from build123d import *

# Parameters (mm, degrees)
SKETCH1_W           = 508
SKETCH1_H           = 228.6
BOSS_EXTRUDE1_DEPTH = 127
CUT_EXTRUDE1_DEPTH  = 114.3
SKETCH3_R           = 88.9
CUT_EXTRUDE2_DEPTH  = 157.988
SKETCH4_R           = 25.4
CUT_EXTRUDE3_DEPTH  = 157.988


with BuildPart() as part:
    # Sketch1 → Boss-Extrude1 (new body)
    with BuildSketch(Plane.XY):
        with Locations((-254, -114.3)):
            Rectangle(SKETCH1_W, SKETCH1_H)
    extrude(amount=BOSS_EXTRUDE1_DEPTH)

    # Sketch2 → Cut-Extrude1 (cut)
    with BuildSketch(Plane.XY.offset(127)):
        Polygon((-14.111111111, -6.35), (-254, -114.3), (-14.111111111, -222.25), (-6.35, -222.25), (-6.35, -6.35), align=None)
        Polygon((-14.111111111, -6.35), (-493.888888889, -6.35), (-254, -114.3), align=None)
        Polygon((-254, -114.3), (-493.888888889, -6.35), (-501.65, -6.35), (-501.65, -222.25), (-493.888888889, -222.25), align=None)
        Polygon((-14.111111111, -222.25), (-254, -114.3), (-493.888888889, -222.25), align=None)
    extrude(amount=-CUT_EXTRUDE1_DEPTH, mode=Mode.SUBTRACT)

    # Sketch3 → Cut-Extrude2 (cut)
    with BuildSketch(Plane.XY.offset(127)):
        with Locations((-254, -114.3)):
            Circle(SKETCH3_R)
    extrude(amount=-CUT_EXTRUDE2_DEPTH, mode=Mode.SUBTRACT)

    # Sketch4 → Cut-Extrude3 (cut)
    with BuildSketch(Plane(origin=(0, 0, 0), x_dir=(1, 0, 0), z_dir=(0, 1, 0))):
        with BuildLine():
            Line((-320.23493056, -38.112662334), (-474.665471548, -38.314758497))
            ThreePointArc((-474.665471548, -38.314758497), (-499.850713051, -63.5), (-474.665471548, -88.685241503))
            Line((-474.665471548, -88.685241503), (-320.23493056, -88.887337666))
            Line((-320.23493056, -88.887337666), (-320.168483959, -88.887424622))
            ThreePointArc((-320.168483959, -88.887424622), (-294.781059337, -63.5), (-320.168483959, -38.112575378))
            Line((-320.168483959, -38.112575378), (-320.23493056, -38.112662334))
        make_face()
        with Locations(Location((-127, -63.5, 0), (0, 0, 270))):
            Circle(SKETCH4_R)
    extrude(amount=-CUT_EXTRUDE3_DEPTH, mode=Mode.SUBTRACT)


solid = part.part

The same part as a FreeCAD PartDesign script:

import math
import FreeCAD as App
import Part
import Sketcher

V = App.Vector
Q = App.Units.Quantity

doc = App.newDocument("Part")
params = doc.addObject("Spreadsheet::Sheet", "Params")
for row, (alias, value) in enumerate([
    ("sketch1_width", "20 in"),
    ("sketch1_height", "9 in"),
    ("pad1_length", "5 in"),
    ("sketch2_width", "19.5 in"),
    ("sketch2_height", "8.5 in"),
    ("pocket1_length", "4.5 in"),
    ("sketch3_diameter", "7 in"),
    ("pocket2_length", "6.22 in"),
    ("sketch4_diameter", "2 in"),
    ("pocket3_length", "6.22 in"),
], start=1):
    params.set(f"A{row}", alias)
    params.set(f"B{row}", "=" + value)
    params.setAlias(f"B{row}", alias)

body = doc.addObject("PartDesign::Body", "Body")

# Sketch on XY plane
sketch1 = body.newObject("Sketcher::SketchObject", "Sketch")
sketch1.AttachmentSupport = (doc.getObject("XY_Plane"), [""])
sketch1.MapMode = "FlatFace"
sketch1.addGeometry([
    Part.LineSegment(V(-508, 0, 0), V(-508, -229, 0)),
    Part.LineSegment(V(-508, -229, 0), V(0, -229, 0)),
    Part.LineSegment(V(0, -229, 0), V(0, 0, 0)),
    Part.LineSegment(V(0, 0, 0), V(-508, 0, 0)),
], False)
sketch1.addConstraint([
    Sketcher.Constraint("Coincident", 0, 2, 1, 1),
    Sketcher.Constraint("Coincident", 1, 2, 2, 1),
    Sketcher.Constraint("Coincident", 2, 2, 3, 1),
    Sketcher.Constraint("Coincident", 3, 2, 0, 1),
    Sketcher.Constraint("Vertical", 0),
    Sketcher.Constraint("Horizontal", 1),
    Sketcher.Constraint("Vertical", 2),
    Sketcher.Constraint("Horizontal", 3),
    Sketcher.Constraint("Coincident", 2, 2, -1, 1),
    Sketcher.Constraint("DistanceX", 1, 1, 1, 2, Q("20 in")),
    Sketcher.Constraint("DistanceY", 0, 2, 0, 1, Q("9 in")),
])
sketch1.setExpression("Constraints[9]", "Params.sketch1_width")
sketch1.setExpression("Constraints[10]", "Params.sketch1_height")
pad1 = body.newObject("PartDesign::Pad", "Pad")
pad1.Profile = sketch1
pad1.setExpression("Length", "Params.pad1_length")

# Sketch on XY plane
sketch2 = body.newObject("Sketcher::SketchObject", "Sketch001")
sketch2.AttachmentSupport = (doc.getObject("XY_Plane"), [""])
sketch2.MapMode = "FlatFace"
sketch2.AttachmentOffset = App.Placement(V(0, 0, 5 * 25.4), App.Rotation())
sketch2.addGeometry([
    Part.LineSegment(V(-6, -222, 0), V(-6, -6, 0)),
    Part.LineSegment(V(-6, -6, 0), V(-502, -6, 0)),
    Part.LineSegment(V(-502, -6, 0), V(-502, -222, 0)),
    Part.LineSegment(V(-502, -222, 0), V(-6, -222, 0)),
], False)
sketch2.addConstraint([
    Sketcher.Constraint("Coincident", 0, 2, 1, 1),
    Sketcher.Constraint("Coincident", 1, 2, 2, 1),
    Sketcher.Constraint("Coincident", 2, 2, 3, 1),
    Sketcher.Constraint("Coincident", 3, 2, 0, 1),
    Sketcher.Constraint("Vertical", 0),
    Sketcher.Constraint("Horizontal", 1),
    Sketcher.Constraint("Vertical", 2),
    Sketcher.Constraint("Horizontal", 3),
    Sketcher.Constraint("DistanceX", 1, 2, 1, 1, Q("19.5 in")),
    Sketcher.Constraint("DistanceY", 0, 1, 0, 2, Q("8.5 in")),
    Sketcher.Constraint("DistanceX", 0, 2, -1, 1, Q("0.25 in")),
    Sketcher.Constraint("DistanceY", 0, 2, -1, 1, Q("0.25 in")),
])
sketch2.setExpression("Constraints[8]", "Params.sketch2_width")
sketch2.setExpression("Constraints[9]", "Params.sketch2_height")
pocket1 = body.newObject("PartDesign::Pocket", "Pocket")
pocket1.Profile = sketch2
pocket1.setExpression("Length", "Params.pocket1_length")

# Sketch on XY plane
sketch3 = body.newObject("Sketcher::SketchObject", "Sketch002")
sketch3.AttachmentSupport = (doc.getObject("XY_Plane"), [""])
sketch3.MapMode = "FlatFace"
sketch3.AttachmentOffset = App.Placement(V(0, 0, 5 * 25.4), App.Rotation())
sketch3.addGeometry(Part.Circle(V(-254, -114, 0), V(0, 0, 1), 89), False)
sketch3.addConstraint([
    Sketcher.Constraint("Diameter", 0, Q("7 in")),
    Sketcher.Constraint("DistanceX", 0, 3, -1, 1, Q("10 in")),
    Sketcher.Constraint("DistanceY", 0, 3, -1, 1, Q("4.5 in")),
])
sketch3.setExpression("Constraints[0]", "Params.sketch3_diameter")
pocket2 = body.newObject("PartDesign::Pocket", "Pocket001")
pocket2.Profile = sketch3
pocket2.setExpression("Length", "Params.pocket2_length")

# Sketch on XZ plane
sketch4 = body.newObject("Sketcher::SketchObject", "Sketch003")
sketch4.AttachmentSupport = (doc.getObject("XZ_Plane"), [""])
sketch4.MapMode = "FlatFace"
sketch4.addGeometry([
    Part.LineSegment(V(-320.23, 38.11, 0), V(-474.67, 38.31, 0)),  # 0
    Part.ArcOfCircle(Part.Circle(V(-474.67, 63.5, 0), V(0, 0, 1), 25.19), math.radians(90), math.radians(270)),  # 1
    Part.LineSegment(V(-474.67, 88.69, 0), V(-320.23, 88.89, 0)),  # 2
    Part.LineSegment(V(-320.23, 88.89, 0), V(-320.17, 88.89, 0)),  # 3
    Part.ArcOfCircle(Part.Circle(V(-320.17, 63.5, 0), V(0, 0, 1), 25.39), math.radians(-90), math.radians(90)),  # 4
    Part.LineSegment(V(-320.17, 38.11, 0), V(-320.23, 38.11, 0)),  # 5
    Part.Circle(V(-127, 63.5, 0), V(0, 0, 1), 25.4),  # 6
], False)
sketch4.addConstraint([
    Sketcher.Constraint("Coincident", 0, 2, 1, 2),
    Sketcher.Constraint("Coincident", 1, 1, 2, 1),
    Sketcher.Constraint("Coincident", 2, 2, 3, 1),
    Sketcher.Constraint("Coincident", 3, 2, 4, 2),
    Sketcher.Constraint("Coincident", 4, 1, 5, 1),
    Sketcher.Constraint("Coincident", 5, 2, 0, 1),
    Sketcher.Constraint("Parallel", 2, 3),
    Sketcher.Constraint("Parallel", 0, 5),
    Sketcher.Constraint("Horizontal", 1, 3, 4, 3),
    Sketcher.Constraint("Horizontal", 4, 3, 6, 3),
    Sketcher.Constraint("Vertical", 1, 3, 0, 2),
    Sketcher.Constraint("Vertical", 0, 2, 1, 1),
    Sketcher.Constraint("Vertical", 4, 3, 3, 2),
    Sketcher.Constraint("Vertical", 3, 2, 4, 1),
    Sketcher.Constraint("Vertical", 2, 2, 5, 2),
    Sketcher.Constraint("Diameter", 6, Q("2 in")),
    Sketcher.Constraint("DistanceX", 6, 3, -1, 1, Q("5 in")),
    Sketcher.Constraint("DistanceY", -1, 1, 1, 3, Q("2.5 in")),
    Sketcher.Constraint("Radius", 1, 25.185242),
    Sketcher.Constraint("Radius", 4, 25.387425),
    Sketcher.Constraint("DistanceX", 1, 3, -1, 1, 474.665472),
    Sketcher.Constraint("DistanceX", 2, 2, -1, 1, 320.234931),
    Sketcher.Constraint("Distance", 3, 0.066447),
])
sketch4.setExpression("Constraints[15]", "Params.sketch4_diameter")
pocket3 = body.newObject("PartDesign::Pocket", "Pocket002")
pocket3.Profile = sketch4
pocket3.setExpression("Length", "Params.pocket3_length")
pocket3.Reversed = True

doc.recompute()
